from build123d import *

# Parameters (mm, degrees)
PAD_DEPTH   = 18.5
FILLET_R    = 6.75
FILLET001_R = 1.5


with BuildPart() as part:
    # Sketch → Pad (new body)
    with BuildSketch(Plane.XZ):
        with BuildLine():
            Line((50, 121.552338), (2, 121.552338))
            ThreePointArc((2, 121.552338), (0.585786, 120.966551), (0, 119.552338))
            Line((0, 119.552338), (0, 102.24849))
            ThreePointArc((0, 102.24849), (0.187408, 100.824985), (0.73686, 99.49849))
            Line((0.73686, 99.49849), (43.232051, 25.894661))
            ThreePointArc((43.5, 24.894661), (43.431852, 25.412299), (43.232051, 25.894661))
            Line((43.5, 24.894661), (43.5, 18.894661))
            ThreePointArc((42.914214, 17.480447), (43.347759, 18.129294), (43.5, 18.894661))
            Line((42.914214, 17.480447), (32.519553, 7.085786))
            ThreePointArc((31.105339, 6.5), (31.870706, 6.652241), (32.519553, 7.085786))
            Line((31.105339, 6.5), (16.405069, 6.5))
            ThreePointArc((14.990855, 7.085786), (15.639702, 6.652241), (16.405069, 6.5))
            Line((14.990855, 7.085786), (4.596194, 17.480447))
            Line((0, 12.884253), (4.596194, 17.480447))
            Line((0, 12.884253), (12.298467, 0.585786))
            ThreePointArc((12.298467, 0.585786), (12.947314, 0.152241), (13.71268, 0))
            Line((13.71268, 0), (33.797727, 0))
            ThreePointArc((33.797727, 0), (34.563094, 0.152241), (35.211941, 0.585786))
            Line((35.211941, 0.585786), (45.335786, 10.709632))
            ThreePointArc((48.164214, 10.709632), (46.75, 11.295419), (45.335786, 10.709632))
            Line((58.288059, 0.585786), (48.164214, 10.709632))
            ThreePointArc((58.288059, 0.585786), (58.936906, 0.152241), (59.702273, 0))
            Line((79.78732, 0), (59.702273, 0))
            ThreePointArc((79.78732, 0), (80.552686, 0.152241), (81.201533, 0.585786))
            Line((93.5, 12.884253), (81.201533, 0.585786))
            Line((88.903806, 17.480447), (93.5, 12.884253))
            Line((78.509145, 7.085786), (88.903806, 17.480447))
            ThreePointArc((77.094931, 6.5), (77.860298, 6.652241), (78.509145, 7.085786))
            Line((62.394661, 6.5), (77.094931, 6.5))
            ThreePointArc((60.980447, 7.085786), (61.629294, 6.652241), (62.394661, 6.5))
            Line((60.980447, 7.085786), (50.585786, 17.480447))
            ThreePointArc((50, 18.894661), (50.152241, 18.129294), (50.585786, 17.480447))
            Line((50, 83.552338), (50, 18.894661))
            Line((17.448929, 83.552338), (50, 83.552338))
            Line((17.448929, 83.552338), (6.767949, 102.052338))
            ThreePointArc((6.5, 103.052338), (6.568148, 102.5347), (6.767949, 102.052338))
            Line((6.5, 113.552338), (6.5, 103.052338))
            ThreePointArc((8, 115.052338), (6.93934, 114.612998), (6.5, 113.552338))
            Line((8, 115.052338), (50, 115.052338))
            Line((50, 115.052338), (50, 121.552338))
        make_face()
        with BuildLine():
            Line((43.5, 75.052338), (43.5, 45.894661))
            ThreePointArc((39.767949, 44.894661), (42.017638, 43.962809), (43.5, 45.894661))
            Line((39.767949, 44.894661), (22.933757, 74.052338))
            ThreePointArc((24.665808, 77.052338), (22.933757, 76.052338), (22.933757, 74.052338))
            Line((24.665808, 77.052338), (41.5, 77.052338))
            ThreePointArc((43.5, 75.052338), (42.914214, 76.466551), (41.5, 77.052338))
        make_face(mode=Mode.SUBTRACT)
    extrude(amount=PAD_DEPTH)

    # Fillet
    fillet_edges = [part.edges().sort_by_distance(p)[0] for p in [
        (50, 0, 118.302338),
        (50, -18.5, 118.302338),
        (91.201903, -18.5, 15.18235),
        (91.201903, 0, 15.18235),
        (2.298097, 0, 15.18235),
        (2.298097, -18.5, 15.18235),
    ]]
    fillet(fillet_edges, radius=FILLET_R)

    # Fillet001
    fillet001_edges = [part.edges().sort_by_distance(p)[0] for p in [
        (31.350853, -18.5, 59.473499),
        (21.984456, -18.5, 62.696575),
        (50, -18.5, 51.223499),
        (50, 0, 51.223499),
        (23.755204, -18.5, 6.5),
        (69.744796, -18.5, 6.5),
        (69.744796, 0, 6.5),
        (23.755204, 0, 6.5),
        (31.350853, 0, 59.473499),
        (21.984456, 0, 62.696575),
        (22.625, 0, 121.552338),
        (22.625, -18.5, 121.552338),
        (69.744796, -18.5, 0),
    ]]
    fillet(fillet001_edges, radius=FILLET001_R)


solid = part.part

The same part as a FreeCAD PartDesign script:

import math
import FreeCAD as App
import Part
import Sketcher
Q = App.Units.Quantity


def edges_at(feature, points):
    """Names of the edges that pass closest to the given points."""
    edges = feature.Shape.Edges
    near = lambda p: min(range(len(edges)), key=lambda i: edges[i].distToShape(Part.Vertex(*p))[0])
    return sorted({f"Edge{near(p) + 1}" for p in points})

doc = App.newDocument("Part")
body = doc.addObject("PartDesign::Body", "Body")

# Sketch on XZ plane
sketch1 = body.newObject("Sketcher::SketchObject", "Sketch")
sketch1.AttachmentSupport = (doc.getObject("XZ_Plane"), [""])
sketch1.MapMode = "FlatFace"
sketch1.addGeometry(Part.LineSegment(App.Vector(50, 121.6, 0), App.Vector(2, 121.6, 0)), False)
sketch1.addGeometry(Part.ArcOfCircle(Part.Circle(App.Vector(2, 119.6, 0), App.Vector(0, 0, 1), 2), math.radians(90), math.radians(180)), False)
sketch1.addGeometry(Part.LineSegment(App.Vector(0, 119.6, 0), App.Vector(0, 102.2, 0)), False)
sketch1.addGeometry(Part.ArcOfCircle(Part.Circle(App.Vector(5.5, 102.2, 0), App.Vector(0, 0, 1), 5.5), math.radians(-180), math.radians(-150)), False)
sketch1.addGeometry(Part.LineSegment(App.Vector(0.7, 99.5, 0), App.Vector(43.2, 25.9, 0)), False)
sketch1.addGeometry(Part.ArcOfCircle(Part.Circle(App.Vector(41.5, 24.9, 0), App.Vector(0, 0, 1), 2), math.radians(0), math.radians(30)), False)
sketch1.addGeometry(Part.LineSegment(App.Vector(43.5, 24.9, 0), App.Vector(43.5, 18.9, 0)), False)
sketch1.addGeometry(Part.ArcOfCircle(Part.Circle(App.Vector(41.5, 18.9, 0), App.Vector(0, 0, 1), 2), math.radians(-45), math.radians(0)), False)
sketch1.addGeometry(Part.LineSegment(App.Vector(42.9, 17.5, 0), App.Vector(32.5, 7.1, 0)), False)
sketch1.addGeometry(Part.ArcOfCircle(Part.Circle(App.Vector(31.1, 8.5, 0), App.Vector(0, 0, 1), 2), math.radians(-90), math.radians(-45)), False)
sketch1.addGeometry(Part.LineSegment(App.Vector(31.1, 6.5, 0), App.Vector(16.4, 6.5, 0)), False)
sketch1.addGeometry(Part.ArcOfCircle(Part.Circle(App.Vector(16.4, 8.5, 0), App.Vector(0, 0, 1), 2), math.radians(-135), math.radians(-90)), False)
sketch1.addGeometry(Part.LineSegment(App.Vector(15, 7.1, 0), App.Vector(4.6, 17.5, 0)), False)
sketch1.addGeometry(Part.LineSegment(App.Vector(4.6, 17.5, 0), App.Vector(0, 12.9, 0)), False)
sketch1.addGeometry(Part.LineSegment(App.Vector(0, 12.9, 0), App.Vector(12.3, 0.6, 0)), False)
sketch1.addGeometry(Part.ArcOfCircle(Part.Circle(App.Vector(13.7, 2, 0), App.Vector(0, 0, 1), 2), math.radians(-135), math.radians(-90)), False)
sketch1.addGeometry(Part.LineSegment(App.Vector(13.7, 0, 0), App.Vector(33.8, 0, 0)), False)
sketch1.addGeometry(Part.ArcOfCircle(Part.Circle(App.Vector(33.8, 2, 0), App.Vector(0, 0, 1), 2), math.radians(-90), math.radians(-45)), False)
sketch1.addGeometry(Part.LineSegment(App.Vector(35.2, 0.6, 0), App.Vector(45.3, 10.7, 0)), False)
sketch1.addGeometry(Part.ArcOfCircle(Part.Circle(App.Vector(46.8, 9.3, 0), App.Vector(0, 0, 1), 2), math.radians(45), math.radians(135)), False)
sketch1.addGeometry(Part.LineSegment(App.Vector(48.2, 10.7, 0), App.Vector(58.3, 0.6, 0)), False)
sketch1.addGeometry(Part.ArcOfCircle(Part.Circle(App.Vector(59.7, 2, 0), App.Vector(0, 0, 1), 2), math.radians(-135), math.radians(-90)), False)
sketch1.addGeometry(Part.LineSegment(App.Vector(59.7, 0, 0), App.Vector(79.8, 0, 0)), False)
sketch1.addGeometry(Part.ArcOfCircle(Part.Circle(App.Vector(79.8, 2, 0), App.Vector(0, 0, 1), 2), math.radians(-90), math.radians(-45)), False)
sketch1.addGeometry(Part.LineSegment(App.Vector(81.2, 0.6, 0), App.Vector(93.5, 12.9, 0)), False)
sketch1.addGeometry(Part.LineSegment(App.Vector(93.5, 12.9, 0), App.Vector(88.9, 17.5, 0)), False)
sketch1.addGeometry(Part.LineSegment(App.Vector(88.9, 17.5, 0), App.Vector(78.5, 7.1, 0)), False)
sketch1.addGeometry(Part.ArcOfCircle(Part.Circle(App.Vector(77.1, 8.5, 0), App.Vector(0, 0, 1), 2), math.radians(-90), math.radians(-45)), False)
sketch1.addGeometry(Part.LineSegment(App.Vector(77.1, 6.5, 0), App.Vector(62.4, 6.5, 0)), False)
sketch1.addGeometry(Part.ArcOfCircle(Part.Circle(App.Vector(62.4, 8.5, 0), App.Vector(0, 0, 1), 2), math.radians(-135), math.radians(-90)), False)
sketch1.addGeometry(Part.LineSegment(App.Vector(61, 7.1, 0), App.Vector(50.6, 17.5, 0)), False)
sketch1.addGeometry(Part.ArcOfCircle(Part.Circle(App.Vector(52, 18.9, 0), App.Vector(0, 0, 1), 2), math.radians(-180), math.radians(-135)), False)
sketch1.addGeometry(Part.LineSegment(App.Vector(50, 18.9, 0), App.Vector(50, 83.6, 0)), False)
sketch1.addGeometry(Part.LineSegment(App.Vector(50, 83.6, 0), App.Vector(17.4, 83.6, 0)), False)
sketch1.addGeometry(Part.LineSegment(App.Vector(17.4, 83.6, 0), App.Vector(6.8, 102.1, 0)), False)
sketch1.addGeometry(Part.ArcOfCircle(Part.Circle(App.Vector(8.5, 103.1, 0), App.Vector(0, 0, 1), 2), math.radians(180), math.radians(210)), False)
sketch1.addGeometry(Part.LineSegment(App.Vector(6.5, 103.1, 0), App.Vector(6.5, 113.6, 0)), False)
sketch1.addGeometry(Part.ArcOfCircle(Part.Circle(App.Vector(8, 113.6, 0), App.Vector(0, 0, 1), 1.5), math.radians(90), math.radians(180)), False)
sketch1.addGeometry(Part.LineSegment(App.Vector(8, 115.1, 0), App.Vector(50, 115.1, 0)), False)
sketch1.addGeometry(Part.LineSegment(App.Vector(50, 115.1, 0), App.Vector(50, 121.6, 0)), False)
sketch1.addGeometry(Part.ArcOfCircle(Part.Circle(App.Vector(41.5, 75.1, 0), App.Vector(0, 0, 1), 2), math.radians(0), math.radians(90)), False)
sketch1.addGeometry(Part.LineSegment(App.Vector(43.5, 75.1, 0), App.Vector(43.5, 45.9, 0)), False)
sketch1.addGeometry(Part.ArcOfCircle(Part.Circle(App.Vector(41.5, 45.9, 0), App.Vector(0, 0, 1), 2), math.radians(-150), math.radians(0)), False)
sketch1.addGeometry(Part.LineSegment(App.Vector(39.8, 44.9, 0), App.Vector(22.9, 74.1, 0)), False)
sketch1.addGeometry(Part.ArcOfCircle(Part.Circle(App.Vector(24.7, 75.1, 0), App.Vector(0, 0, 1), 2), math.radians(90), math.radians(210)), False)
sketch1.addGeometry(Part.LineSegment(App.Vector(24.7, 77.1, 0), App.Vector(41.5, 77.1, 0)), False)
sketch1.addConstraint(Sketcher.Constraint("Tangent", 0, 2, 1, 1))
sketch1.addConstraint(Sketcher.Constraint("Tangent", 1, 2, 2, 1))
sketch1.addConstraint(Sketcher.Constraint("Tangent", 2, 2, 3, 1))
sketch1.addConstraint(Sketcher.Constraint("Tangent", 3, 2, 4, 1))
sketch1.addConstraint(Sketcher.Constraint("Tangent", 4, 2, 5, 2))
sketch1.addConstraint(Sketcher.Constraint("Tangent", 5, 1, 6, 1))
sketch1.addConstraint(Sketcher.Constraint("Tangent", 6, 2, 7, 2))
sketch1.addConstraint(Sketcher.Constraint("Tangent", 7, 1, 8, 1))
sketch1.addConstraint(Sketcher.Constraint("Tangent", 8, 2, 9, 2))
sketch1.addConstraint(Sketcher.Constraint("Tangent", 9, 1, 10, 1))
sketch1.addConstraint(Sketcher.Constraint("Tangent", 10, 2, 11, 2))
sketch1.addConstraint(Sketcher.Constraint("Tangent", 11, 1, 12, 1))
sketch1.addConstraint(Sketcher.Constraint("Coincident", 12, 2, 13, 1))
sketch1.addConstraint(Sketcher.Constraint("Coincident", 13, 2, 14, 1))
sketch1.addConstraint(Sketcher.Constraint("Tangent", 14, 2, 15, 1))
sketch1.addConstraint(Sketcher.Constraint("Tangent", 15, 2, 16, 1))
sketch1.addConstraint(Sketcher.Constraint("Tangent", 16, 2, 17, 1))
sketch1.addConstraint(Sketcher.Constraint("Tangent", 17, 2, 18, 1))
sketch1.addConstraint(Sketcher.Constraint("Tangent", 18, 2, 19, 2))
sketch1.addConstraint(Sketcher.Constraint("Tangent", 19, 1, 20, 1))
sketch1.addConstraint(Sketcher.Constraint("Tangent", 20, 2, 21, 1))
sketch1.addConstraint(Sketcher.Constraint("Tangent", 21, 2, 22, 1))
sketch1.addConstraint(Sketcher.Constraint("Tangent", 22, 2, 23, 1))
sketch1.addConstraint(Sketcher.Constraint("Tangent", 23, 2, 24, 1))
sketch1.addConstraint(Sketcher.Constraint("Coincident", 24, 2, 25, 1))
sketch1.addConstraint(Sketcher.Constraint("Coincident", 25, 2, 26, 1))
sketch1.addConstraint(Sketcher.Constraint("Tangent", 26, 2, 27, 2))
sketch1.addConstraint(Sketcher.Constraint("Tangent", 27, 1, 28, 1))
sketch1.addConstraint(Sketcher.Constraint("Tangent", 28, 2, 29, 2))
sketch1.addConstraint(Sketcher.Constraint("Tangent", 29, 1, 30, 1))
sketch1.addConstraint(Sketcher.Constraint("Tangent", 30, 2, 31, 2))
sketch1.addConstraint(Sketcher.Constraint("Tangent", 31, 1, 32, 1))
sketch1.addConstraint(Sketcher.Constraint("Coincident", 32, 2, 33, 1))
sketch1.addConstraint(Sketcher.Constraint("Coincident", 33, 2, 34, 1))
sketch1.addConstraint(Sketcher.Constraint("Tangent", 34, 2, 35, 2))
sketch1.addConstraint(Sketcher.Constraint("Tangent", 35, 1, 36, 1))
sketch1.addConstraint(Sketcher.Constraint("Tangent", 36, 2, 37, 2))
sketch1.addConstraint(Sketcher.Constraint("Tangent", 37, 1, 38, 1))
sketch1.addConstraint(Sketcher.Constraint("Coincident", 38, 2, 39, 1))
sketch1.addConstraint(Sketcher.Constraint("Coincident", 39, 2, 0, 1))
sketch1.addConstraint(Sketcher.Constraint("Tangent", 40, 1, 41, 1))
sketch1.addConstraint(Sketcher.Constraint("Tangent", 41, 2, 42, 2))
sketch1.addConstraint(Sketcher.Constraint("Tangent", 42, 1, 43, 1))
sketch1.addConstraint(Sketcher.Constraint("Tangent", 43, 2, 44, 2))
sketch1.addConstraint(Sketcher.Constraint("Tangent", 44, 1, 45, 1))
sketch1.addConstraint(Sketcher.Constraint("Tangent", 45, 2, 40, 2))
sketch1.addConstraint(Sketcher.Constraint("Horizontal", 0))
sketch1.addConstraint(Sketcher.Constraint("Vertical", 2))
sketch1.addConstraint(Sketcher.Constraint("Vertical", 6))
sketch1.addConstraint(Sketcher.Constraint("Horizontal", 10))
sketch1.addConstraint(Sketcher.Constraint("Horizontal", 16))
sketch1.addConstraint(Sketcher.Constraint("Horizontal", 22))
sketch1.addConstraint(Sketcher.Constraint("Horizontal", 28))
sketch1.addConstraint(Sketcher.Constraint("Vertical", 32))
sketch1.addConstraint(Sketcher.Constraint("Horizontal", 33))
sketch1.addConstraint(Sketcher.Constraint("Vertical", 36))
sketch1.addConstraint(Sketcher.Constraint("Horizontal", 38))
sketch1.addConstraint(Sketcher.Constraint("Vertical", 39))
sketch1.addConstraint(Sketcher.Constraint("Vertical", 41))
sketch1.addConstraint(Sketcher.Constraint("Horizontal", 45))
sketch1.addConstraint(Sketcher.Constraint("Equal", 7, 9))
sketch1.addConstraint(Sketcher.Constraint("Equal", 9, 11))
sketch1.addConstraint(Sketcher.Constraint("Equal", 11, 15))
sketch1.addConstraint(Sketcher.Constraint("Equal", 15, 17))
sketch1.addConstraint(Sketcher.Constraint("Equal", 1, 19))
sketch1.addConstraint(Sketcher.Constraint("Equal", 17, 21))
sketch1.addConstraint(Sketcher.Constraint("Equal", 21, 23))
sketch1.addConstraint(Sketcher.Constraint("Equal", 23, 27))
sketch1.addConstraint(Sketcher.Constraint("Equal", 27, 29))
sketch1.addConstraint(Sketcher.Constraint("Equal", 29, 31))
sketch1.addConstraint(Sketcher.Constraint("Equal", 5, 35))
sketch1.addConstraint(Sketcher.Constraint("Equal", 19, 40))
sketch1.addConstraint(Sketcher.Constraint("Equal", 40, 42))
sketch1.addConstraint(Sketcher.Constraint("Equal", 42, 44))
sketch1.addConstraint(Sketcher.Constraint("PointOnObject", 1, 2, -2))
sketch1.addConstraint(Sketcher.Constraint("PointOnObject", 13, 2, -2))
sketch1.addConstraint(Sketcher.Constraint("PointOnObject", 15, 2, -1))
sketch1.addConstraint(Sketcher.Constraint("PointOnObject", 21, 2, -1))
sketch1.addConstraint(Sketcher.Constraint("Perpendicular", 8, 12))
sketch1.addConstraint(Sketcher.Constraint("Perpendicular", 12, 13))
sketch1.addConstraint(Sketcher.Constraint("Perpendicular", 13, 14))
sketch1.addConstraint(Sketcher.Constraint("Perpendicular", 14, 18))
sketch1.addConstraint(Sketcher.Constraint("Perpendicular", 18, 20))
sketch1.addConstraint(Sketcher.Constraint("Perpendicular", 20, 24))
sketch1.addConstraint(Sketcher.Constraint("Perpendicular", 24, 25))
sketch1.addConstraint(Sketcher.Constraint("Perpendicular", 25, 26))
sketch1.addConstraint(Sketcher.Constraint("Perpendicular", 26, 30))
sketch1.addConstraint(Sketcher.Constraint("Parallel", 4, 34))
sketch1.addConstraint(Sketcher.Constraint("Parallel", 34, 43))
sketch1.addConstraint(Sketcher.Constraint("Horizontal", 11, 3, 27, 3))
sketch1.addConstraint(Sketcher.Constraint("Horizontal", 7, 3, 31, 3))
sketch1.addConstraint(Sketcher.Constraint("Horizontal", 8, 2, 11, 1))
sketch1.addConstraint(Sketcher.Constraint("Horizontal", 7, 1, 12, 2))
sketch1.addConstraint(Sketcher.Constraint("Horizontal", 13, 2, 24, 2))
sketch1.addConstraint(Sketcher.Constraint("Horizontal", 12, 2, 25, 2))
sketch1.addConstraint(Sketcher.Constraint("Vertical", 32, 2, 38, 2))
sketch1.addConstraint(Sketcher.Constraint("Vertical", 6, 2, 40, 1))
sketch1.addConstraint(Sketcher.Constraint("Equal", 16, 22))
sketch1.addConstraint(Sketcher.Constraint("Equal", 10, 28))
sketch1.addConstraint(Sketcher.Constraint("Radius", 1, 2.0))
sketch1.addConstraint(Sketcher.Constraint("Radius", 37, 1.500001))
sketch1.addConstraint(Sketcher.Constraint("DistanceX", 0, 2, 0, 1, 48.0))
sketch1.addConstraint(Sketcher.Constraint("DistanceX", 38, 1, 38, 2, 42.0))
sketch1.addConstraint(Sketcher.Constraint("DistanceY", 6, 2, 6, 1, 6.0))
sketch1.addConstraint(Sketcher.Constraint("Angle", 4, Q("-60 deg")))
sketch1.addConstraint(Sketcher.Constraint("DistanceY", 36, 1, 36, 2, 10.5))
sketch1.addConstraint(Sketcher.Constraint("DistanceY", 39, 1, 39, 2, 6.5))
sketch1.addConstraint(Sketcher.Constraint("Distance", 13, 6.5))
sketch1.addConstraint(Sketcher.Constraint("DistanceX", -1, 1, 40, 3, 41.5))
sketch1.addConstraint(Sketcher.Constraint("DistanceY", -1, 1, 9, 1, 6.5))
sketch1.addConstraint(Sketcher.Constraint("Radius", 3, 5.500003))
sketch1.addConstraint(Sketcher.Constraint("Radius", 5, 1.999994))
sketch1.addConstraint(Sketcher.Constraint("Radius", 7, 2.000004))
sketch1.addConstraint(Sketcher.Constraint("DistanceX", 10, 2, 10, 1, 14.70027))
sketch1.addConstraint(Sketcher.Constraint("DistanceX", 33, 2, 33, 1, 32.551071))
sketch1.addConstraint(Sketcher.Constraint("DistanceY", 2, 2, 2, 1, 17.303848))
sketch1.addConstraint(Sketcher.Constraint("Distance", 18, 14.31728))
sketch1.addConstraint(Sketcher.Constraint("DistanceX", 45, 1, 45, 2, 16.834192))
sketch1.addConstraint(Sketcher.Constraint("DistanceY", -1, 1, 42, 3, 45.894661))
pad1 = body.newObject("PartDesign::Pad", "Pad")
pad1.Profile = sketch1
pad1.Length = 18.5
doc.recompute()

fillet = body.newObject("PartDesign::Fillet", "Fillet")
fillet.Base = (pad1, edges_at(pad1, [
    (50, 0, 118.302),
    (50, -18.5, 118.302),
    (91.202, -18.5, 15.182),
    (91.202, 0, 15.182),
    (2.298, 0, 15.182),
    (2.298, -18.5, 15.182),
]))
fillet.Radius = 6.75
doc.recompute()

fillet2 = body.newObject("PartDesign::Fillet", "Fillet001")
fillet2.Base = (fillet, edges_at(fillet, [
    (31.351, -18.5, 59.473),
    (21.984, -18.5, 62.697),
    (50, -18.5, 51.223),
    (50, 0, 51.223),
    (23.755, -18.5, 6.5),
    (69.745, -18.5, 6.5),
    (69.745, 0, 6.5),
    (23.755, 0, 6.5),
    (31.351, 0, 59.473),
    (21.984, 0, 62.697),
    (22.625, 0, 121.552),
    (22.625, -18.5, 121.552),
    (69.745, -18.5, 0),
]))
fillet2.Radius = 1.5

doc.recompute()
